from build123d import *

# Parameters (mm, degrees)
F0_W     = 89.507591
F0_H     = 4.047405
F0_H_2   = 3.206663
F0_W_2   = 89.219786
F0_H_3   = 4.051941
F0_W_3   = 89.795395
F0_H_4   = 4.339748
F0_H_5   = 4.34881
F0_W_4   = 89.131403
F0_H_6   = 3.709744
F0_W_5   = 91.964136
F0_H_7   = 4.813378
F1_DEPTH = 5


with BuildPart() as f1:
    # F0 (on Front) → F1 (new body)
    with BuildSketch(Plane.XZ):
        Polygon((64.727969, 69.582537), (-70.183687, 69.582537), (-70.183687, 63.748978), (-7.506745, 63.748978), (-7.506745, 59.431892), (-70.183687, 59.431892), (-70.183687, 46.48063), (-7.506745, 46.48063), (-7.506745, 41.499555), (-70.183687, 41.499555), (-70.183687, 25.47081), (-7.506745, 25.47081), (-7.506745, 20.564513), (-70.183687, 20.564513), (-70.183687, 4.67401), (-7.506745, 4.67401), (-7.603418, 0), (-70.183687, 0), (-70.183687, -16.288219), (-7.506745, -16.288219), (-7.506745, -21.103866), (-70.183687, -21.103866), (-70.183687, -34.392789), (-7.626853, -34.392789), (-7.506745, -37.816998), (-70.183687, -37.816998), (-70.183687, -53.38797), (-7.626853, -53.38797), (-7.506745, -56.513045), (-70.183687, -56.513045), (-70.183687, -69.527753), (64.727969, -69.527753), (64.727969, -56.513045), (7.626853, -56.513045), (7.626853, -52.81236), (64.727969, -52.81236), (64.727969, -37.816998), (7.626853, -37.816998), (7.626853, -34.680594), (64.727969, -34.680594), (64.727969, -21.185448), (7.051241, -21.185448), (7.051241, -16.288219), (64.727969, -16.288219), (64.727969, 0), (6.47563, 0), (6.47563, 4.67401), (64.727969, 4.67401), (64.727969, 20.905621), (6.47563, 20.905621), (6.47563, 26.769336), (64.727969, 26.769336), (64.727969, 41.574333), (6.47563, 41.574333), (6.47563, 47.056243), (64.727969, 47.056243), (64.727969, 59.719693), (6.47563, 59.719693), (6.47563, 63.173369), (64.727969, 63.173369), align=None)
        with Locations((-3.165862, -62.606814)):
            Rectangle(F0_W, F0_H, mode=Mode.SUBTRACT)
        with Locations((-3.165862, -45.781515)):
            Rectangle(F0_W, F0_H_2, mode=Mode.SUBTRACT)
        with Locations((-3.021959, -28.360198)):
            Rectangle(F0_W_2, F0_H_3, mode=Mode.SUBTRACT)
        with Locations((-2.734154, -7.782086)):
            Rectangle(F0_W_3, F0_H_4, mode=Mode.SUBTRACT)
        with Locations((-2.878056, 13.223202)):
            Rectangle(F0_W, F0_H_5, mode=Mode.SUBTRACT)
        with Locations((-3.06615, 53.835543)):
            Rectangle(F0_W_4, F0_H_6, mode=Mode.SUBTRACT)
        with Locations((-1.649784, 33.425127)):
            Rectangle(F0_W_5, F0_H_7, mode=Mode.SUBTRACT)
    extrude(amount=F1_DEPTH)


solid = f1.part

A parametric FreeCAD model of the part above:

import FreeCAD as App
import Part
import Sketcher
from FreeCAD import Vector

doc = App.newDocument("Part")
body = doc.addObject("PartDesign::Body", "Body")

# Sketch on XZ plane
sketch1 = body.newObject("Sketcher::SketchObject", "Sketch")
sketch1.AttachmentSupport = (doc.getObject("XZ_Plane"), [""])
sketch1.MapMode = "FlatFace"
sketch1.addGeometry([
    Part.LineSegment(Vector(64.727969, 69.582537, 0), Vector(-70.183687, 69.582537, 0)),  # 0
    Part.LineSegment(Vector(-70.183687, 69.582537, 0), Vector(-70.183687, 63.748978, 0)),  # 1
    Part.LineSegment(Vector(-70.183687, 63.748978, 0), Vector(-7.506745, 63.748978, 0)),  # 2
    Part.LineSegment(Vector(-7.506745, 63.748978, 0), Vector(-7.506745, 59.431892, 0)),  # 3
    Part.LineSegment(Vector(-7.506745, 59.431892, 0), Vector(-70.183687, 59.431892, 0)),  # 4
    Part.LineSegment(Vector(-70.183687, 59.431892, 0), Vector(-70.183687, 46.48063, 0)),  # 5
    Part.LineSegment(Vector(-70.183687, 46.48063, 0), Vector(-7.506745, 46.48063, 0)),  # 6
    Part.LineSegment(Vector(-7.506745, 46.48063, 0), Vector(-7.506745, 41.499555, 0)),  # 7
    Part.LineSegment(Vector(-7.506745, 41.499555, 0), Vector(-70.183687, 41.499555, 0)),  # 8
    Part.LineSegment(Vector(-70.183687, 41.499555, 0), Vector(-70.183687, 25.47081, 0)),  # 9
    Part.LineSegment(Vector(-70.183687, 25.47081, 0), Vector(-7.506745, 25.47081, 0)),  # 10
    Part.LineSegment(Vector(-7.506745, 25.47081, 0), Vector(-7.506745, 20.564513, 0)),  # 11
    Part.LineSegment(Vector(-7.506745, 20.564513, 0), Vector(-70.183687, 20.564513, 0)),  # 12
    Part.LineSegment(Vector(-70.183687, 20.564513, 0), Vector(-70.183687, 4.67401, 0)),  # 13
    Part.LineSegment(Vector(-70.183687, 4.67401, 0), Vector(-7.506745, 4.67401, 0)),  # 14
    Part.LineSegment(Vector(-7.506745, 4.67401, 0), Vector(-7.603418, 0, 0)),  # 15
    Part.LineSegment(Vector(-7.603418, 0, 0), Vector(-70.183687, 0, 0)),  # 16
    Part.LineSegment(Vector(-70.183687, 0, 0), Vector(-70.183687, -16.288219, 0)),  # 17
    Part.LineSegment(Vector(-70.183687, -16.288219, 0), Vector(-7.506745, -16.288219, 0)),  # 18
    Part.LineSegment(Vector(-7.506745, -16.288219, 0), Vector(-7.506745, -21.103866, 0)),  # 19
    Part.LineSegment(Vector(-7.506745, -21.103866, 0), Vector(-70.183687, -21.103866, 0)),  # 20
    Part.LineSegment(Vector(-70.183687, -21.103866, 0), Vector(-70.183687, -34.392789, 0)),  # 21
    Part.LineSegment(Vector(-70.183687, -34.392789, 0), Vector(-7.626853, -34.392789, 0)),  # 22
    Part.LineSegment(Vector(-7.626853, -34.392789, 0), Vector(-7.506745, -37.816998, 0)),  # 23
    Part.LineSegment(Vector(-7.506745, -37.816998, 0), Vector(-70.183687, -37.816998, 0)),  # 24
    Part.LineSegment(Vector(-70.183687, -37.816998, 0), Vector(-70.183687, -53.38797, 0)),  # 25
    Part.LineSegment(Vector(-70.183687, -53.38797, 0), Vector(-7.626853, -53.38797, 0)),  # 26
    Part.LineSegment(Vector(-7.626853, -53.38797, 0), Vector(-7.506745, -56.513045, 0)),  # 27
    Part.LineSegment(Vector(-7.506745, -56.513045, 0), Vector(-70.183687, -56.513045, 0)),  # 28
    Part.LineSegment(Vector(-70.183687, -56.513045, 0), Vector(-70.183687, -69.527753, 0)),  # 29
    Part.LineSegment(Vector(-70.183687, -69.527753, 0), Vector(64.727969, -69.527753, 0)),  # 30
    Part.LineSegment(Vector(64.727969, -69.527753, 0), Vector(64.727969, -56.513045, 0)),  # 31
    Part.LineSegment(Vector(64.727969, -56.513045, 0), Vector(7.626853, -56.513045, 0)),  # 32
    Part.LineSegment(Vector(7.626853, -56.513045, 0), Vector(7.626853, -52.81236, 0)),  # 33
    Part.LineSegment(Vector(7.626853, -52.81236, 0), Vector(64.727969, -52.81236, 0)),  # 34
    Part.LineSegment(Vector(64.727969, -52.81236, 0), Vector(64.727969, -37.816998, 0)),  # 35
    Part.LineSegment(Vector(64.727969, -37.816998, 0), Vector(7.626853, -37.816998, 0)),  # 36
    Part.LineSegment(Vector(7.626853, -37.816998, 0), Vector(7.626853, -34.680594, 0)),  # 37
    Part.LineSegment(Vector(7.626853, -34.680594, 0), Vector(64.727969, -34.680594, 0)),  # 38
    Part.LineSegment(Vector(64.727969, -34.680594, 0), Vector(64.727969, -21.185448, 0)),  # 39
    Part.LineSegment(Vector(64.727969, -21.185448, 0), Vector(7.051241, -21.185448, 0)),  # 40
    Part.LineSegment(Vector(7.051241, -21.185448, 0), Vector(7.051241, -16.288219, 0)),  # 41
    Part.LineSegment(Vector(7.051241, -16.288219, 0), Vector(64.727969, -16.288219, 0)),  # 42
    Part.LineSegment(Vector(64.727969, -16.288219, 0), Vector(64.727969, 0, 0)),  # 43
    Part.LineSegment(Vector(64.727969, 0, 0), Vector(6.47563, 0, 0)),  # 44
    Part.LineSegment(Vector(6.47563, 0, 0), Vector(6.47563, 4.67401, 0)),  # 45
    Part.LineSegment(Vector(6.47563, 4.67401, 0), Vector(64.727969, 4.67401, 0)),  # 46
    Part.LineSegment(Vector(64.727969, 4.67401, 0), Vector(64.727969, 20.905621, 0)),  # 47
    Part.LineSegment(Vector(64.727969, 20.905621, 0), Vector(6.47563, 20.905621, 0)),  # 48
    Part.LineSegment(Vector(6.47563, 20.905621, 0), Vector(6.47563, 26.769336, 0)),  # 49
    Part.LineSegment(Vector(6.47563, 26.769336, 0), Vector(64.727969, 26.769336, 0)),  # 50
    Part.LineSegment(Vector(64.727969, 26.769336, 0), Vector(64.727969, 41.574333, 0)),  # 51
    Part.LineSegment(Vector(64.727969, 41.574333, 0), Vector(6.47563, 41.574333, 0)),  # 52
    Part.LineSegment(Vector(6.47563, 41.574333, 0), Vector(6.47563, 47.056243, 0)),  # 53
    Part.LineSegment(Vector(6.47563, 47.056243, 0), Vector(64.727969, 47.056243, 0)),  # 54
    Part.LineSegment(Vector(64.727969, 47.056243, 0), Vector(64.727969, 59.719693, 0)),  # 55
    Part.LineSegment(Vector(64.727969, 59.719693, 0), Vector(6.47563, 59.719693, 0)),  # 56
    Part.LineSegment(Vector(6.47563, 59.719693, 0), Vector(6.47563, 63.173369, 0)),  # 57
    Part.LineSegment(Vector(6.47563, 63.173369, 0), Vector(64.727969, 63.173369, 0)),  # 58
    Part.LineSegment(Vector(64.727969, 63.173369, 0), Vector(64.727969, 69.582537, 0)),  # 59
    Part.LineSegment(Vector(41.587933, -64.630516, 0), Vector(-47.919657, -64.630516, 0)),  # 60
    Part.LineSegment(Vector(-47.919657, -64.630516, 0), Vector(-47.919657, -60.583112, 0)),  # 61
    Part.LineSegment(Vector(-47.919657, -60.583112, 0), Vector(41.587933, -60.583112, 0)),  # 62
    Part.LineSegment(Vector(41.587933, -60.583112, 0), Vector(41.587933, -64.630516, 0)),  # 63
    Part.LineSegment(Vector(41.587933, -47.384847, 0), Vector(-47.919657, -47.384847, 0)),  # 64
    Part.LineSegment(Vector(-47.919657, -47.384847, 0), Vector(-47.919657, -44.178184, 0)),  # 65
    Part.LineSegment(Vector(-47.919657, -44.178184, 0), Vector(41.587933, -44.178184, 0)),  # 66
    Part.LineSegment(Vector(41.587933, -44.178184, 0), Vector(41.587933, -47.384847, 0)),  # 67
    Part.LineSegment(Vector(41.587934, -30.386169, 0), Vector(-47.631852, -30.386169, 0)),  # 68
    Part.LineSegment(Vector(-47.631852, -30.386169, 0), Vector(-47.631852, -26.334228, 0)),  # 69
    Part.LineSegment(Vector(-47.631852, -26.334228, 0), Vector(41.587934, -26.334228, 0)),  # 70
    Part.LineSegment(Vector(41.587934, -26.334228, 0), Vector(41.587934, -30.386169, 0)),  # 71
    Part.LineSegment(Vector(42.163544, -9.95196, 0), Vector(-47.631852, -9.95196, 0)),  # 72
    Part.LineSegment(Vector(-47.631852, -9.95196, 0), Vector(-47.631852, -5.612212, 0)),  # 73
    Part.LineSegment(Vector(-47.631852, -5.612212, 0), Vector(42.163544, -5.612212, 0)),  # 74
    Part.LineSegment(Vector(42.163544, -5.612212, 0), Vector(42.163544, -9.95196, 0)),  # 75
    Part.LineSegment(Vector(41.87574, 11.048797, 0), Vector(-47.631852, 11.048797, 0)),  # 76
    Part.LineSegment(Vector(-47.631852, 11.048797, 0), Vector(-47.631852, 15.397607, 0)),  # 77
    Part.LineSegment(Vector(-47.631852, 15.397607, 0), Vector(41.87574, 15.397607, 0)),  # 78
    Part.LineSegment(Vector(41.87574, 15.397607, 0), Vector(41.87574, 11.048797, 0)),  # 79
    Part.LineSegment(Vector(41.499552, 51.980671, 0), Vector(-47.631852, 51.980671, 0)),  # 80
    Part.LineSegment(Vector(-47.631852, 51.980671, 0), Vector(-47.631852, 55.690415, 0)),  # 81
    Part.LineSegment(Vector(-47.631852, 55.690415, 0), Vector(41.499552, 55.690415, 0)),  # 82
    Part.LineSegment(Vector(41.499552, 55.690415, 0), Vector(41.499552, 51.980671, 0)),  # 83
    Part.LineSegment(Vector(44.332284, 31.018438, 0), Vector(-47.631852, 31.018438, 0)),  # 84
    Part.LineSegment(Vector(-47.631852, 31.018438, 0), Vector(-47.631852, 35.831816, 0)),  # 85
    Part.LineSegment(Vector(-47.631852, 35.831816, 0), Vector(44.332284, 35.831816, 0)),  # 86
    Part.LineSegment(Vector(44.332284, 35.831816, 0), Vector(44.332284, 31.018438, 0)),  # 87
], False)
sketch1.addConstraint([
    Sketcher.Constraint("Coincident", 0, 2, 1, 1),
    Sketcher.Constraint("Coincident", 1, 2, 2, 1),
    Sketcher.Constraint("Coincident", 2, 2, 3, 1),
    Sketcher.Constraint("Coincident", 3, 2, 4, 1),
    Sketcher.Constraint("Coincident", 4, 2, 5, 1),
    Sketcher.Constraint("Coincident", 5, 2, 6, 1),
    Sketcher.Constraint("Coincident", 6, 2, 7, 1),
    Sketcher.Constraint("Coincident", 7, 2, 8, 1),
    Sketcher.Constraint("Coincident", 8, 2, 9, 1),
    Sketcher.Constraint("Coincident", 9, 2, 10, 1),
    Sketcher.Constraint("Coincident", 10, 2, 11, 1),
    Sketcher.Constraint("Coincident", 11, 2, 12, 1),
    Sketcher.Constraint("Coincident", 12, 2, 13, 1),
    Sketcher.Constraint("Coincident", 13, 2, 14, 1),
    Sketcher.Constraint("Coincident", 14, 2, 15, 1),
    Sketcher.Constraint("Coincident", 15, 2, 16, 1),
    Sketcher.Constraint("Coincident", 16, 2, 17, 1),
    Sketcher.Constraint("Coincident", 17, 2, 18, 1),
    Sketcher.Constraint("Coincident", 18, 2, 19, 1),
    Sketcher.Constraint("Coincident", 19, 2, 20, 1),
    Sketcher.Constraint("Coincident", 20, 2, 21, 1),
    Sketcher.Constraint("Coincident", 21, 2, 22, 1),
    Sketcher.Constraint("Coincident", 22, 2, 23, 1),
    Sketcher.Constraint("Coincident", 23, 2, 24, 1),
    Sketcher.Constraint("Coincident", 24, 2, 25, 1),
    Sketcher.Constraint("Coincident", 25, 2, 26, 1),
    Sketcher.Constraint("Coincident", 26, 2, 27, 1),
    Sketcher.Constraint("Coincident", 27, 2, 28, 1),
    Sketcher.Constraint("Coincident", 28, 2, 29, 1),
    Sketcher.Constraint("Coincident", 29, 2, 30, 1),
    Sketcher.Constraint("Coincident", 30, 2, 31, 1),
    Sketcher.Constraint("Coincident", 31, 2, 32, 1),
    Sketcher.Constraint("Coincident", 32, 2, 33, 1),
    Sketcher.Constraint("Coincident", 33, 2, 34, 1),
    Sketcher.Constraint("Coincident", 34, 2, 35, 1),
    Sketcher.Constraint("Coincident", 35, 2, 36, 1),
    Sketcher.Constraint("Coincident", 36, 2, 37, 1),
    Sketcher.Constraint("Coincident", 37, 2, 38, 1),
    Sketcher.Constraint("Coincident", 38, 2, 39, 1),
    Sketcher.Constraint("Coincident", 39, 2, 40, 1),
    Sketcher.Constraint("Coincident", 40, 2, 41, 1),
    Sketcher.Constraint("Coincident", 41, 2, 42, 1),
    Sketcher.Constraint("Coincident", 42, 2, 43, 1),
    Sketcher.Constraint("Coincident", 43, 2, 44, 1),
    Sketcher.Constraint("Coincident", 44, 2, 45, 1),
    Sketcher.Constraint("Coincident", 45, 2, 46, 1),
    Sketcher.Constraint("Coincident", 46, 2, 47, 1),
    Sketcher.Constraint("Coincident", 47, 2, 48, 1),
    Sketcher.Constraint("Coincident", 48, 2, 49, 1),
    Sketcher.Constraint("Coincident", 49, 2, 50, 1),
    Sketcher.Constraint("Coincident", 50, 2, 51, 1),
    Sketcher.Constraint("Coincident", 51, 2, 52, 1),
    Sketcher.Constraint("Coincident", 52, 2, 53, 1),
    Sketcher.Constraint("Coincident", 53, 2, 54, 1),
    Sketcher.Constraint("Coincident", 54, 2, 55, 1),
    Sketcher.Constraint("Coincident", 55, 2, 56, 1),
    Sketcher.Constraint("Coincident", 56, 2, 57, 1),
    Sketcher.Constraint("Coincident", 57, 2, 58, 1),
    Sketcher.Constraint("Coincident", 58, 2, 59, 1),
    Sketcher.Constraint("Coincident", 59, 2, 0, 1),
    Sketcher.Constraint("Coincident", 60, 2, 61, 1),
    Sketcher.Constraint("Coincident", 61, 2, 62, 1),
    Sketcher.Constraint("Coincident", 62, 2, 63, 1),
    Sketcher.Constraint("Coincident", 63, 2, 60, 1),
    Sketcher.Constraint("Coincident", 64, 2, 65, 1),
    Sketcher.Constraint("Coincident", 65, 2, 66, 1),
    Sketcher.Constraint("Coincident", 66, 2, 67, 1),
    Sketcher.Constraint("Coincident", 67, 2, 64, 1),
    Sketcher.Constraint("Coincident", 68, 2, 69, 1),
    Sketcher.Constraint("Coincident", 69, 2, 70, 1),
    Sketcher.Constraint("Coincident", 70, 2, 71, 1),
    Sketcher.Constraint("Coincident", 71, 2, 68, 1),
    Sketcher.Constraint("Coincident", 72, 2, 73, 1),
    Sketcher.Constraint("Coincident", 73, 2, 74, 1),
    Sketcher.Constraint("Coincident", 74, 2, 75, 1),
    Sketcher.Constraint("Coincident", 75, 2, 72, 1),
    Sketcher.Constraint("Coincident", 76, 2, 77, 1),
    Sketcher.Constraint("Coincident", 77, 2, 78, 1),
    Sketcher.Constraint("Coincident", 78, 2, 79, 1),
    Sketcher.Constraint("Coincident", 79, 2, 76, 1),
    Sketcher.Constraint("Coincident", 80, 2, 81, 1),
    Sketcher.Constraint("Coincident", 81, 2, 82, 1),
    Sketcher.Constraint("Coincident", 82, 2, 83, 1),
    Sketcher.Constraint("Coincident", 83, 2, 80, 1),
    Sketcher.Constraint("Coincident", 84, 2, 85, 1),
    Sketcher.Constraint("Coincident", 85, 2, 86, 1),
    Sketcher.Constraint("Coincident", 86, 2, 87, 1),
    Sketcher.Constraint("Coincident", 87, 2, 84, 1),
    Sketcher.Constraint("Horizontal", 0),
    Sketcher.Constraint("Vertical", 1),
    Sketcher.Constraint("Horizontal", 2),
    Sketcher.Constraint("Vertical", 3),
    Sketcher.Constraint("Horizontal", 4),
    Sketcher.Constraint("Vertical", 5),
    Sketcher.Constraint("Horizontal", 6),
    Sketcher.Constraint("Vertical", 7),
    Sketcher.Constraint("Horizontal", 8),
    Sketcher.Constraint("Vertical", 9),
    Sketcher.Constraint("Horizontal", 10),
    Sketcher.Constraint("Vertical", 11),
    Sketcher.Constraint("Horizontal", 12),
    Sketcher.Constraint("Vertical", 13),
    Sketcher.Constraint("Horizontal", 14),
    Sketcher.Constraint("Horizontal", 16),
    Sketcher.Constraint("Vertical", 17),
    Sketcher.Constraint("Horizontal", 18),
    Sketcher.Constraint("Vertical", 19),
    Sketcher.Constraint("Horizontal", 20),
    Sketcher.Constraint("Vertical", 21),
    Sketcher.Constraint("Horizontal", 22),
    Sketcher.Constraint("Horizontal", 24),
    Sketcher.Constraint("Vertical", 25),
    Sketcher.Constraint("Horizontal", 26),
    Sketcher.Constraint("Horizontal", 28),
    Sketcher.Constraint("Vertical", 29),
    Sketcher.Constraint("Horizontal", 30),
    Sketcher.Constraint("Vertical", 31),
    Sketcher.Constraint("Horizontal", 32),
    Sketcher.Constraint("Vertical", 33),
    Sketcher.Constraint("Horizontal", 34),
    Sketcher.Constraint("Vertical", 35),
    Sketcher.Constraint("Horizontal", 36),
    Sketcher.Constraint("Vertical", 37),
    Sketcher.Constraint("Horizontal", 38),
    Sketcher.Constraint("Vertical", 39),
    Sketcher.Constraint("Horizontal", 40),
    Sketcher.Constraint("Vertical", 41),
    Sketcher.Constraint("Horizontal", 42),
    Sketcher.Constraint("Vertical", 43),
    Sketcher.Constraint("Horizontal", 44),
    Sketcher.Constraint("Vertical", 45),
    Sketcher.Constraint("Horizontal", 46),
    Sketcher.Constraint("Vertical", 47),
    Sketcher.Constraint("Horizontal", 48),
    Sketcher.Constraint("Vertical", 49),
    Sketcher.Constraint("Horizontal", 50),
    Sketcher.Constraint("Vertical", 51),
    Sketcher.Constraint("Horizontal", 52),
    Sketcher.Constraint("Vertical", 53),
    Sketcher.Constraint("Horizontal", 54),
    Sketcher.Constraint("Vertical", 55),
    Sketcher.Constraint("Horizontal", 56),
    Sketcher.Constraint("Vertical", 57),
    Sketcher.Constraint("Horizontal", 58),
    Sketcher.Constraint("Vertical", 59),
    Sketcher.Constraint("Horizontal", 60),
    Sketcher.Constraint("Vertical", 61),
    Sketcher.Constraint("Horizontal", 62),
    Sketcher.Constraint("Vertical", 63),
    Sketcher.Constraint("Horizontal", 64),
    Sketcher.Constraint("Vertical", 65),
    Sketcher.Constraint("Horizontal", 66),
    Sketcher.Constraint("Vertical", 67),
    Sketcher.Constraint("Horizontal", 68),
    Sketcher.Constraint("Vertical", 69),
    Sketcher.Constraint("Horizontal", 70),
    Sketcher.Constraint("Vertical", 71),
    Sketcher.Constraint("Horizontal", 72),
    Sketcher.Constraint("Vertical", 73),
    Sketcher.Constraint("Horizontal", 74),
    Sketcher.Constraint("Vertical", 75),
    Sketcher.Constraint("Horizontal", 76),
    Sketcher.Constraint("Vertical", 77),
    Sketcher.Constraint("Horizontal", 78),
    Sketcher.Constraint("Vertical", 79),
    Sketcher.Constraint("Horizontal", 80),
    Sketcher.Constraint("Vertical", 81),
    Sketcher.Constraint("Horizontal", 82),
    Sketcher.Constraint("Vertical", 83),
    Sketcher.Constraint("Horizontal", 84),
    Sketcher.Constraint("Vertical", 85),
    Sketcher.Constraint("Horizontal", 86),
    Sketcher.Constraint("Vertical", 87),
    Sketcher.Constraint("PointOnObject", 15, 2, -1),
    Sketcher.Constraint("PointOnObject", 43, 2, -1),
    Sketcher.Constraint("Horizontal", 28, 2, 31, 2),
    Sketcher.Constraint("Horizontal", 24, 2, 35, 2),
    Sketcher.Constraint("Horizontal", 18, 2, 41, 2),
    Sketcher.Constraint("Horizontal", 14, 2, 45, 2),
    Sketcher.Constraint("Vertical", 1, 2, 4, 2),
    Sketcher.Constraint("Vertical", 3, 2, 6, 2),
    Sketcher.Constraint("Vertical", 5, 2, 8, 2),
    Sketcher.Constraint("Vertical", 7, 2, 10, 2),
    Sketcher.Constraint("Vertical", 9, 2, 12, 2),
    Sketcher.Constraint("Vertical", 11, 2, 14, 2),
    Sketcher.Constraint("Vertical", 13, 2, 16, 2),
    Sketcher.Constraint("Vertical", 14, 2, 18, 2),
    Sketcher.Constraint("Vertical", 17, 2, 20, 2),
    Sketcher.Constraint("Vertical", 19, 2, 23, 2),
    Sketcher.Constraint("Vertical", 21, 2, 24, 2),
    Sketcher.Constraint("Vertical", 22, 2, 26, 2),
    Sketcher.Constraint("Vertical", 23, 2, 27, 2),
    Sketcher.Constraint("Vertical", 25, 2, 28, 2),
    Sketcher.Constraint("Vertical", 31, 2, 34, 2),
    Sketcher.Constraint("Vertical", 33, 2, 36, 2),
    Sketcher.Constraint("Vertical", 35, 2, 38, 2),
    Sketcher.Constraint("Vertical", 39, 2, 42, 2),
    Sketcher.Constraint("Vertical", 43, 2, 46, 2),
    Sketcher.Constraint("Vertical", 45, 2, 48, 2),
    Sketcher.Constraint("Vertical", 47, 2, 50, 2),
    Sketcher.Constraint("Vertical", 49, 2, 52, 2),
    Sketcher.Constraint("Vertical", 51, 2, 54, 2),
    Sketcher.Constraint("Vertical", 53, 2, 56, 2),
    Sketcher.Constraint("Vertical", 55, 2, 58, 2),
    Sketcher.Constraint("Vertical", 61, 2, 64, 2),
    Sketcher.Constraint("Vertical", 63, 2, 66, 2),
    Sketcher.Constraint("Vertical", 67, 2, 70, 2),
    Sketcher.Constraint("Vertical", 69, 2, 72, 2),
    Sketcher.Constraint("Vertical", 73, 2, 76, 2),
    Sketcher.Constraint("Vertical", 77, 2, 80, 2),
    Sketcher.Constraint("Vertical", 81, 2, 84, 2),
    Sketcher.Constraint("Equal", 66, 76),
    Sketcher.Constraint("DistanceX", 16, 2, 16, 1, 62.580269),
    Sketcher.Constraint("DistanceX", 40, 2, 40, 1, 57.676728),
    Sketcher.Constraint("DistanceX", 44, 2, 44, 1, 58.252339),
    Sketcher.Constraint("DistanceX", 60, 2, 60, 1, 89.507591),
    Sketcher.Constraint("DistanceY", 1, 2, 1, 1, 5.833559),
    Sketcher.Constraint("DistanceY", 17, 2, 17, 1, 16.288219),
    Sketcher.Constraint("DistanceY", 29, 2, 29, 1, 13.014708),
    Sketcher.Constraint("DistanceY", 41, 1, 41, 2, 4.897229),
    Sketcher.Constraint("DistanceY", 45, 1, 45, 2, 4.67401),
    Sketcher.Constraint("DistanceY", 47, 1, 47, 2, 16.231611),
    Sketcher.Constraint("DistanceY", 53, 1, 53, 2, 5.48191),
    Sketcher.Constraint("DistanceY", 55, 1, 55, 2, 12.66345),
    Sketcher.Constraint("DistanceY", 59, 1, 59, 2, 6.409168),
    Sketcher.Constraint("DistanceY", 69, 1, 69, 2, 4.051941),
    Sketcher.Constraint("DistanceY", 77, 1, 77, 2, 4.34881),
    Sketcher.Constraint("DistanceY", 85, 1, 85, 2, 4.813378),
    Sketcher.Constraint("Distance", 15, 4.67501),
    Sketcher.Constraint("DistanceX", 0, 2, 0, 1, 134.911656),
    Sketcher.Constraint("DistanceX", 22, 1, 22, 2, 62.556834),
    Sketcher.Constraint("DistanceX", 32, 2, 32, 1, 57.101116),
    Sketcher.Constraint("DistanceX", 68, 2, 68, 1, 89.219786),
    Sketcher.Constraint("DistanceX", 72, 2, 72, 1, 89.795395),
    Sketcher.Constraint("DistanceX", 80, 2, 80, 1, 89.131403),
    Sketcher.Constraint("DistanceX", 84, 2, 84, 1, 91.964136),
    Sketcher.Constraint("DistanceY", 3, 2, 3, 1, 4.317086),
    Sketcher.Constraint("DistanceY", 5, 2, 5, 1, 12.951262),
    Sketcher.Constraint("DistanceY", 7, 2, 7, 1, 4.981075),
    Sketcher.Constraint("DistanceY", 9, 2, 9, 1, 16.028745),
    Sketcher.Constraint("DistanceY", 11, 2, 11, 1, 4.906297),
    Sketcher.Constraint("DistanceY", 13, 2, 13, 1, 15.890503),
    Sketcher.Constraint("DistanceY", 19, 2, 19, 1, 4.815647),
    Sketcher.Constraint("DistanceY", 21, 2, 21, 1, 13.288923),
    Sketcher.Constraint("DistanceY", 25, 2, 25, 1, 15.570972),
    Sketcher.Constraint("DistanceY", 33, 1, 33, 2, 3.700685),
    Sketcher.Constraint("DistanceY", 35, 1, 35, 2, 14.995362),
    Sketcher.Constraint("DistanceY", 37, 1, 37, 2, 3.136404),
    Sketcher.Constraint("DistanceY", 39, 1, 39, 2, 13.495146),
    Sketcher.Constraint("DistanceY", 49, 1, 49, 2, 5.863715),
    Sketcher.Constraint("DistanceY", 51, 1, 51, 2, 14.804997),
    Sketcher.Constraint("DistanceY", 61, 1, 61, 2, 4.047405),
    Sketcher.Constraint("DistanceY", 65, 1, 65, 2, 3.206663),
    Sketcher.Constraint("DistanceY", 73, 1, 73, 2, 4.339748),
    Sketcher.Constraint("DistanceY", 81, 1, 81, 2, 3.709744),
    Sketcher.Constraint("DistanceX", -1, 1, 30, 2, 64.727969),
    Sketcher.Constraint("DistanceY", 61, 2, -1, 1, 60.583112),
    Sketcher.Constraint("DistanceY", 68, 2, -1, 1, 30.386169),
    Sketcher.Constraint("DistanceX", 72, 2, -1, 1, 47.631852),
    Sketcher.Constraint("DistanceY", 72, 2, -1, 1, 9.95196),
    Sketcher.Constraint("DistanceY", -1, 1, 80, 2, 51.980671),
    Sketcher.Constraint("DistanceY", -1, 1, 84, 2, 31.018438),
    Sketcher.Constraint("DistanceY", 64, 2, -1, 1, 47.384847),
    Sketcher.Constraint("DistanceY", -1, 1, 76, 2, 11.048797),
])
pad1 = body.newObject("PartDesign::Pad", "Pad")
pad1.Profile = sketch1
pad1.Length = 5

doc.recompute()
